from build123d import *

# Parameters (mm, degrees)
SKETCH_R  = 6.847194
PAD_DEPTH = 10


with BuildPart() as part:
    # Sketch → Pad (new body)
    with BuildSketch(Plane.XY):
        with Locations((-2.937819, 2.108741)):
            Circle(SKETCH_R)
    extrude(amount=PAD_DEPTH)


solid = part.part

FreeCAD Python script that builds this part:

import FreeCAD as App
import Part
import Sketcher
Q = App.Units.Quantity

doc = App.newDocument("Part")
body = doc.addObject("PartDesign::Body", "Body")

# Sketch on XY plane
sketch1 = body.newObject("Sketcher::SketchObject", "Sketch")
sketch1.AttachmentSupport = (doc.getObject("XY_Plane"), [""])
sketch1.MapMode = "FlatFace"
sketch1.addGeometry(Part.Circle(App.Vector(-2.937819, 2.108741, 0), App.Vector(0, 0, 1), 6.847194), False)
sketch1.addConstraint([
    Sketcher.Constraint("Diameter", 0, Q("13.694388 mm")),
    Sketcher.Constraint("DistanceX", 0, 3, -1, 1, Q("2.937819 mm")),
    Sketcher.Constraint("DistanceY", -1, 1, 0, 3, Q("2.108741 mm")),
])
pad1 = body.newObject("PartDesign::Pad", "Pad")
pad1.Profile = sketch1
pad1.Length = 10

doc.recompute()
